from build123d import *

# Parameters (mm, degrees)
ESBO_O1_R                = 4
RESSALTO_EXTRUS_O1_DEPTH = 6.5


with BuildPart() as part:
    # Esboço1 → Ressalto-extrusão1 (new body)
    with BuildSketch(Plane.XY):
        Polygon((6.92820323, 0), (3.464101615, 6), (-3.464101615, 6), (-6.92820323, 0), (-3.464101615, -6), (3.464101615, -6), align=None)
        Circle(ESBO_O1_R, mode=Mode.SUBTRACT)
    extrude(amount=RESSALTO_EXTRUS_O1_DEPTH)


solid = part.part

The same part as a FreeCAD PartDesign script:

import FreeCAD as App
import Part
import Sketcher
Q = App.Units.Quantity

doc = App.newDocument("Part")
body = doc.addObject("PartDesign::Body", "Body")

# Sketch on XY plane
sketch1 = doc.addObject("Sketcher::SketchObject", "Sketch")
body.addObject(sketch1)
sketch1.AttachmentSupport = (doc.XY_Plane, [""])
sketch1.MapMode = "FlatFace"
sketch1.addGeometry(Part.LineSegment(App.Vector(6.9, 0, 0), App.Vector(3.5, 6, 0)), False)
sketch1.addGeometry(Part.LineSegment(App.Vector(3.5, 6, 0), App.Vector(-3.5, 6, 0)), False)
sketch1.addGeometry(Part.LineSegment(App.Vector(-3.5, 6, 0), App.Vector(-6.9, 0, 0)), False)
sketch1.addGeometry(Part.LineSegment(App.Vector(-6.9, 0, 0), App.Vector(-3.5, -6, 0)), False)
sketch1.addGeometry(Part.LineSegment(App.Vector(-3.5, -6, 0), App.Vector(3.5, -6, 0)), False)
sketch1.addGeometry(Part.LineSegment(App.Vector(3.5, -6, 0), App.Vector(6.9, 0, 0)), False)
sketch1.addGeometry(Part.Circle(App.Vector(0, 0, 0), App.Vector(0, 0, 1), 4), False)
sketch1.addConstraint(Sketcher.Constraint("Coincident", 0, 2, 1, 1))
sketch1.addConstraint(Sketcher.Constraint("Coincident", 1, 2, 2, 1))
sketch1.addConstraint(Sketcher.Constraint("Coincident", 2, 2, 3, 1))
sketch1.addConstraint(Sketcher.Constraint("Coincident", 3, 2, 4, 1))
sketch1.addConstraint(Sketcher.Constraint("Coincident", 4, 2, 5, 1))
sketch1.addConstraint(Sketcher.Constraint("Coincident", 5, 2, 0, 1))
sketch1.addConstraint(Sketcher.Constraint("Horizontal", 1))
sketch1.addConstraint(Sketcher.Constraint("Horizontal", 4))
sketch1.addConstraint(Sketcher.Constraint("Coincident", 6, 3, -1, 1))
sketch1.addConstraint(Sketcher.Constraint("Symmetric", 0, 2, 3, 2, -1, 1))
sketch1.addConstraint(Sketcher.Constraint("Symmetric", 2, 2, 5, 2, -1, 1))
sketch1.addConstraint(Sketcher.Constraint("PointOnObject", 2, 2, -1))
sketch1.addConstraint(Sketcher.Constraint("Parallel", 2, 5))
sketch1.addConstraint(Sketcher.Constraint("Vertical", 1, 2, 3, 2))
sketch1.addConstraint(Sketcher.Constraint("Diameter", 6, 8.0))
sketch1.addConstraint(Sketcher.Constraint("Angle", 0, Q("120 deg")))
sketch1.addConstraint(Sketcher.Constraint("DistanceY", -1, 1, 0, 2, 6.0))
sketch1.addConstraint(Sketcher.Constraint("DistanceX", -1, 1, 0, 2, 3.464102))
pad1 = doc.addObject("PartDesign::Pad", "Pad")
body.addObject(pad1)
pad1.Profile = sketch1
pad1.Length = 6.5

doc.recompute()
